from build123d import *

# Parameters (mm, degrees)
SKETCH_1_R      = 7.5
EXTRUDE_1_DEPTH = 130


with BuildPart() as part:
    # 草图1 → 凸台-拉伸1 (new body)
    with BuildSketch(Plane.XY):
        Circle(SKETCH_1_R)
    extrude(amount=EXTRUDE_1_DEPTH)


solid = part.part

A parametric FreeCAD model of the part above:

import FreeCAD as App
import Part
import Sketcher

doc = App.newDocument("Part")
params = doc.addObject("Spreadsheet::Sheet", "Params")
for row, (alias, value) in enumerate([
    ("sketch1_diameter", "15 mm"),
    ("pad1_length", "130 mm"),
], start=1):
    params.set(f"A{row}", alias)
    params.set(f"B{row}", "=" + value)
    params.setAlias(f"B{row}", alias)

body = doc.addObject("PartDesign::Body", "Body")

sketch1 = body.newObject("Sketcher::SketchObject", "Sketch")
sketch1.AttachmentSupport = (doc.getObject("XY_Plane"), [""])
sketch1.MapMode = "FlatFace"
sketch1.addGeometry(Part.Circle(App.Vector(0, 0, 0), App.Vector(0, 0, 1), 8), False)
sketch1.addConstraint([
    Sketcher.Constraint("Coincident", 0, 3, -1, 1),
    Sketcher.Constraint("Diameter", 0, 15.0),
])
sketch1.setExpression("Constraints[1]", "Params.sketch1_diameter")
pad1 = body.newObject("PartDesign::Pad", "Pad")
pad1.Profile = sketch1
pad1.setExpression("Length", "Params.pad1_length")

doc.recompute()
